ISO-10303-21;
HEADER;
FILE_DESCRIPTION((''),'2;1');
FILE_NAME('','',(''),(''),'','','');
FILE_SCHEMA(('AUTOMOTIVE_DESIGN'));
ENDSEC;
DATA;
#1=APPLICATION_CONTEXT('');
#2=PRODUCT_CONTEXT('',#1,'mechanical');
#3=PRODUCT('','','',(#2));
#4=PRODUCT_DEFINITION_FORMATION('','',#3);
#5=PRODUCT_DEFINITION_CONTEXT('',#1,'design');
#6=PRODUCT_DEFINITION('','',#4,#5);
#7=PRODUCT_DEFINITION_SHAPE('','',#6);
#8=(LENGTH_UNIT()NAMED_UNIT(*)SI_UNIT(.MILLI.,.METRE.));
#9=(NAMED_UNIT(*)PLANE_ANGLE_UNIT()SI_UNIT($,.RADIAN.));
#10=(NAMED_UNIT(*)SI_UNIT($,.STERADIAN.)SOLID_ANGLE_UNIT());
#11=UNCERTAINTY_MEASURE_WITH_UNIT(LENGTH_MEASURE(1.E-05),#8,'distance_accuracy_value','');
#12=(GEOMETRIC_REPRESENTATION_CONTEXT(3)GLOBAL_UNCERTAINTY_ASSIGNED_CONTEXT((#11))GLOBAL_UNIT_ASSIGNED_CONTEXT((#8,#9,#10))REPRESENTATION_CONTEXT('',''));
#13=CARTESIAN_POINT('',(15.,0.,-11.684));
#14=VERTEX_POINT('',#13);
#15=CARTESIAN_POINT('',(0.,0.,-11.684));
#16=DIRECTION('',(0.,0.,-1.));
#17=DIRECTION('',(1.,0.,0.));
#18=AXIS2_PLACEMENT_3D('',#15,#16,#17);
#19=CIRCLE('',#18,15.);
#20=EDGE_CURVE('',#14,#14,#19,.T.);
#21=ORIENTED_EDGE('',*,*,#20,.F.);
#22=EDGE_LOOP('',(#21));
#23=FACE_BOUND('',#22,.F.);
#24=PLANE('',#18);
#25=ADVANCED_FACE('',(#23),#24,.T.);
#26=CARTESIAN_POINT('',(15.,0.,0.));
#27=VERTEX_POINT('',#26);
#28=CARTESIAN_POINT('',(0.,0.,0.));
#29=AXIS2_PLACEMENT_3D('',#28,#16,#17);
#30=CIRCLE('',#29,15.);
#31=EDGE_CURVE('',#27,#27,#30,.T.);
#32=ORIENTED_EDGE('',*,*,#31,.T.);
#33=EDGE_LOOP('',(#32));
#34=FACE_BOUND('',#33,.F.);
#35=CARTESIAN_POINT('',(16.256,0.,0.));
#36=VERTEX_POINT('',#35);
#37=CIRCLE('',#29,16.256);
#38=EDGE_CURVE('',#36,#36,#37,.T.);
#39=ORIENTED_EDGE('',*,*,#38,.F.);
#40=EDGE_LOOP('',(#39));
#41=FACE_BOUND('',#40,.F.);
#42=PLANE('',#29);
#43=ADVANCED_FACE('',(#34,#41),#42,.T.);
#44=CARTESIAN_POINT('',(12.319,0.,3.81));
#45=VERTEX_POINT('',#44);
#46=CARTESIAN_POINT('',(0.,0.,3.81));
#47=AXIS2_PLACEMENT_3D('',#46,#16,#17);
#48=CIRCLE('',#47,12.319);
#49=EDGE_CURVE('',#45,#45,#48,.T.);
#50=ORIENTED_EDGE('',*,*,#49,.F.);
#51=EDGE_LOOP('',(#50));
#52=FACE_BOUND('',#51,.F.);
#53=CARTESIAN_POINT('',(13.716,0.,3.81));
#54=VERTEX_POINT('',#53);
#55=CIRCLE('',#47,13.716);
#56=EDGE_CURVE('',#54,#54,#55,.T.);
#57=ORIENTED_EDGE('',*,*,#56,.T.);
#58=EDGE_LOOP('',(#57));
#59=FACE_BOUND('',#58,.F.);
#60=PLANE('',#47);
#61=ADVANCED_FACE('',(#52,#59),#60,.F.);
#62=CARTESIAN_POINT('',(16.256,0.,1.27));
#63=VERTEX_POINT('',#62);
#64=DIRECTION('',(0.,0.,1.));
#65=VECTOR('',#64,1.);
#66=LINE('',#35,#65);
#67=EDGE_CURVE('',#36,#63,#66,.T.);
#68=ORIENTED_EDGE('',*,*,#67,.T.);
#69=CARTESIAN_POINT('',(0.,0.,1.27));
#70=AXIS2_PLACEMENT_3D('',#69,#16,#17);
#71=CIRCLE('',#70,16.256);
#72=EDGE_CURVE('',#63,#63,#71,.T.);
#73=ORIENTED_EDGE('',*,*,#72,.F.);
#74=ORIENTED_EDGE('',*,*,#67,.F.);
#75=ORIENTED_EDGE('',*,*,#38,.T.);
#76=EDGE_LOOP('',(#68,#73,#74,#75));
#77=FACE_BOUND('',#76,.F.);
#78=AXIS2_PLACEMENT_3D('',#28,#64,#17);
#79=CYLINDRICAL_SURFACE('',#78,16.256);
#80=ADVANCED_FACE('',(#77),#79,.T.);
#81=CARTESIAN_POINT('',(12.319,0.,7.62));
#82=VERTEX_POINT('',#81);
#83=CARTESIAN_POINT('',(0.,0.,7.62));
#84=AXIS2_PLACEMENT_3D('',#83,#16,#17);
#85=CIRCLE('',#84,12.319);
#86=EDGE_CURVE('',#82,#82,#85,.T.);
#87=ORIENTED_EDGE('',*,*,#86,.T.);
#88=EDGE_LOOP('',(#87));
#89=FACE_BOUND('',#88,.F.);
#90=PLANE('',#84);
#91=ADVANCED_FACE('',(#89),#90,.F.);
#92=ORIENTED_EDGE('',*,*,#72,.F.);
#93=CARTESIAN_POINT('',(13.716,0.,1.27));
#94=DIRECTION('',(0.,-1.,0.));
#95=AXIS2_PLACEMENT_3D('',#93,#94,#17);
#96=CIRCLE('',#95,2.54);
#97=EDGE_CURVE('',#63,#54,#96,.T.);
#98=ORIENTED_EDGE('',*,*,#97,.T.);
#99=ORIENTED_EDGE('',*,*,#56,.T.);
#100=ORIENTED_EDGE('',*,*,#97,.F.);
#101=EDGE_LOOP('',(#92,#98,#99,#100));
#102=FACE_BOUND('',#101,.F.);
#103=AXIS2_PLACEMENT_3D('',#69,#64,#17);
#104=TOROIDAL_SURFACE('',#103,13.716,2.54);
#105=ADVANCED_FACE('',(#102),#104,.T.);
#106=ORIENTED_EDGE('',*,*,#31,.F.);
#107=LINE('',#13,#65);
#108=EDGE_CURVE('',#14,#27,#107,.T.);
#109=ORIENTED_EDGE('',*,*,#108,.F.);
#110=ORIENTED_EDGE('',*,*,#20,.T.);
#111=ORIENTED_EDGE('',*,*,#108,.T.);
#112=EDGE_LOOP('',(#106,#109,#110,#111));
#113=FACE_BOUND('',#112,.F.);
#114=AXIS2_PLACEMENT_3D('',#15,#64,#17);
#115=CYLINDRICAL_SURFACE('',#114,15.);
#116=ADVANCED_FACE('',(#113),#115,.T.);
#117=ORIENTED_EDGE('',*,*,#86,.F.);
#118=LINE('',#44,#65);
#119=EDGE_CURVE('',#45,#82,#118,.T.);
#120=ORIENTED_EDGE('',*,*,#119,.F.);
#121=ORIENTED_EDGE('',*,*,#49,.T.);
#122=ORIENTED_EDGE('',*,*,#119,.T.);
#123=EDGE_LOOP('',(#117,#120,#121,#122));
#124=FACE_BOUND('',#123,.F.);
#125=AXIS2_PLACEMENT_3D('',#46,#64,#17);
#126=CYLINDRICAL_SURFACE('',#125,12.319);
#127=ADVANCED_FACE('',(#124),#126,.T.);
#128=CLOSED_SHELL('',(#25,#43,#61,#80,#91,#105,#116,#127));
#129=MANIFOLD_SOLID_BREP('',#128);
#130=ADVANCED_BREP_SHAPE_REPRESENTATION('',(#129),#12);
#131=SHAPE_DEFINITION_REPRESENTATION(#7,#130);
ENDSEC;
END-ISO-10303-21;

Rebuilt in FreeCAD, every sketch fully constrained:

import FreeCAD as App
import Part
import Sketcher
from FreeCAD import Vector
Q = App.Units.Quantity


def edges_at(feature, points):
    """Names of the edges that pass closest to the given points."""
    edges = feature.Shape.Edges
    near = lambda p: min(range(len(edges)), key=lambda i: edges[i].distToShape(Part.Vertex(*p))[0])
    return sorted({f"Edge{near(p) + 1}" for p in points})


def add_polygon(sketch, points):
    """Adds a closed chain of lines whose ends are joined by coincident constraints."""
    first, n = sketch.GeometryCount, len(points)
    for a, b in zip(points, points[1:] + points[:1]):
        sketch.addGeometry(Part.LineSegment(App.Vector(*a, 0), App.Vector(*b, 0)), False)
    for i in range(n):
        sketch.addConstraint(Sketcher.Constraint("Coincident", first + i, 2, first + (i + 1) % n, 1))

doc = App.newDocument("Part")
body = doc.addObject("PartDesign::Body", "Body")

# Sketch on XZ plane
sketch1 = doc.addObject("Sketcher::SketchObject", "Sketch")
body.addObject(sketch1)
sketch1.AttachmentSupport = (doc.XZ_Plane, [""])
sketch1.MapMode = "FlatFace"
add_polygon(sketch1, [(12.3, 7.6), (0, 7.6), (0, -11.7), (15, -11.7), (15, 0), (16.3, 0), (16.3, 3.8), (12.3, 3.8)])  # lines 0-7
sketch1.addConstraint([
    Sketcher.Constraint("Horizontal", 0),
    Sketcher.Constraint("Vertical", 1),
    Sketcher.Constraint("Horizontal", 2),
    Sketcher.Constraint("Vertical", 3),
    Sketcher.Constraint("Horizontal", 4),
    Sketcher.Constraint("Vertical", 5),
    Sketcher.Constraint("Horizontal", 6),
    Sketcher.Constraint("Vertical", 7),
    Sketcher.Constraint("PointOnObject", 0, 2, -2),
    Sketcher.Constraint("PointOnObject", 3, 2, -1),
    Sketcher.Constraint("Equal", 5, 7),
    Sketcher.Constraint("DistanceY", 1, 2, 1, 1, Q("0.76 in")),
    Sketcher.Constraint("DistanceY", 3, 1, 3, 2, Q("0.46 in")),
    Sketcher.Constraint("DistanceX", 0, 2, 0, 1, Q("0.485 in")),
    Sketcher.Constraint("DistanceX", 6, 2, 6, 1, Q("0.155 in")),
    Sketcher.Constraint("DistanceX", 2, 1, 2, 2, Q("15 mm")),
])
revolution = doc.addObject("PartDesign::Revolution", "Revolution")
body.addObject(revolution)
revolution.Profile = sketch1
revolution.ReferenceAxis = (sketch1, ["V_Axis"])
revolution.Angle = 360
doc.recompute()

fillet = doc.addObject("PartDesign::Fillet", "Fillet")
body.addObject(fillet)
fillet.Base = (revolution, edges_at(revolution, [(-16.256, 0, 3.81)]))
fillet.Radius = Q("0.1 in")

doc.recompute()
